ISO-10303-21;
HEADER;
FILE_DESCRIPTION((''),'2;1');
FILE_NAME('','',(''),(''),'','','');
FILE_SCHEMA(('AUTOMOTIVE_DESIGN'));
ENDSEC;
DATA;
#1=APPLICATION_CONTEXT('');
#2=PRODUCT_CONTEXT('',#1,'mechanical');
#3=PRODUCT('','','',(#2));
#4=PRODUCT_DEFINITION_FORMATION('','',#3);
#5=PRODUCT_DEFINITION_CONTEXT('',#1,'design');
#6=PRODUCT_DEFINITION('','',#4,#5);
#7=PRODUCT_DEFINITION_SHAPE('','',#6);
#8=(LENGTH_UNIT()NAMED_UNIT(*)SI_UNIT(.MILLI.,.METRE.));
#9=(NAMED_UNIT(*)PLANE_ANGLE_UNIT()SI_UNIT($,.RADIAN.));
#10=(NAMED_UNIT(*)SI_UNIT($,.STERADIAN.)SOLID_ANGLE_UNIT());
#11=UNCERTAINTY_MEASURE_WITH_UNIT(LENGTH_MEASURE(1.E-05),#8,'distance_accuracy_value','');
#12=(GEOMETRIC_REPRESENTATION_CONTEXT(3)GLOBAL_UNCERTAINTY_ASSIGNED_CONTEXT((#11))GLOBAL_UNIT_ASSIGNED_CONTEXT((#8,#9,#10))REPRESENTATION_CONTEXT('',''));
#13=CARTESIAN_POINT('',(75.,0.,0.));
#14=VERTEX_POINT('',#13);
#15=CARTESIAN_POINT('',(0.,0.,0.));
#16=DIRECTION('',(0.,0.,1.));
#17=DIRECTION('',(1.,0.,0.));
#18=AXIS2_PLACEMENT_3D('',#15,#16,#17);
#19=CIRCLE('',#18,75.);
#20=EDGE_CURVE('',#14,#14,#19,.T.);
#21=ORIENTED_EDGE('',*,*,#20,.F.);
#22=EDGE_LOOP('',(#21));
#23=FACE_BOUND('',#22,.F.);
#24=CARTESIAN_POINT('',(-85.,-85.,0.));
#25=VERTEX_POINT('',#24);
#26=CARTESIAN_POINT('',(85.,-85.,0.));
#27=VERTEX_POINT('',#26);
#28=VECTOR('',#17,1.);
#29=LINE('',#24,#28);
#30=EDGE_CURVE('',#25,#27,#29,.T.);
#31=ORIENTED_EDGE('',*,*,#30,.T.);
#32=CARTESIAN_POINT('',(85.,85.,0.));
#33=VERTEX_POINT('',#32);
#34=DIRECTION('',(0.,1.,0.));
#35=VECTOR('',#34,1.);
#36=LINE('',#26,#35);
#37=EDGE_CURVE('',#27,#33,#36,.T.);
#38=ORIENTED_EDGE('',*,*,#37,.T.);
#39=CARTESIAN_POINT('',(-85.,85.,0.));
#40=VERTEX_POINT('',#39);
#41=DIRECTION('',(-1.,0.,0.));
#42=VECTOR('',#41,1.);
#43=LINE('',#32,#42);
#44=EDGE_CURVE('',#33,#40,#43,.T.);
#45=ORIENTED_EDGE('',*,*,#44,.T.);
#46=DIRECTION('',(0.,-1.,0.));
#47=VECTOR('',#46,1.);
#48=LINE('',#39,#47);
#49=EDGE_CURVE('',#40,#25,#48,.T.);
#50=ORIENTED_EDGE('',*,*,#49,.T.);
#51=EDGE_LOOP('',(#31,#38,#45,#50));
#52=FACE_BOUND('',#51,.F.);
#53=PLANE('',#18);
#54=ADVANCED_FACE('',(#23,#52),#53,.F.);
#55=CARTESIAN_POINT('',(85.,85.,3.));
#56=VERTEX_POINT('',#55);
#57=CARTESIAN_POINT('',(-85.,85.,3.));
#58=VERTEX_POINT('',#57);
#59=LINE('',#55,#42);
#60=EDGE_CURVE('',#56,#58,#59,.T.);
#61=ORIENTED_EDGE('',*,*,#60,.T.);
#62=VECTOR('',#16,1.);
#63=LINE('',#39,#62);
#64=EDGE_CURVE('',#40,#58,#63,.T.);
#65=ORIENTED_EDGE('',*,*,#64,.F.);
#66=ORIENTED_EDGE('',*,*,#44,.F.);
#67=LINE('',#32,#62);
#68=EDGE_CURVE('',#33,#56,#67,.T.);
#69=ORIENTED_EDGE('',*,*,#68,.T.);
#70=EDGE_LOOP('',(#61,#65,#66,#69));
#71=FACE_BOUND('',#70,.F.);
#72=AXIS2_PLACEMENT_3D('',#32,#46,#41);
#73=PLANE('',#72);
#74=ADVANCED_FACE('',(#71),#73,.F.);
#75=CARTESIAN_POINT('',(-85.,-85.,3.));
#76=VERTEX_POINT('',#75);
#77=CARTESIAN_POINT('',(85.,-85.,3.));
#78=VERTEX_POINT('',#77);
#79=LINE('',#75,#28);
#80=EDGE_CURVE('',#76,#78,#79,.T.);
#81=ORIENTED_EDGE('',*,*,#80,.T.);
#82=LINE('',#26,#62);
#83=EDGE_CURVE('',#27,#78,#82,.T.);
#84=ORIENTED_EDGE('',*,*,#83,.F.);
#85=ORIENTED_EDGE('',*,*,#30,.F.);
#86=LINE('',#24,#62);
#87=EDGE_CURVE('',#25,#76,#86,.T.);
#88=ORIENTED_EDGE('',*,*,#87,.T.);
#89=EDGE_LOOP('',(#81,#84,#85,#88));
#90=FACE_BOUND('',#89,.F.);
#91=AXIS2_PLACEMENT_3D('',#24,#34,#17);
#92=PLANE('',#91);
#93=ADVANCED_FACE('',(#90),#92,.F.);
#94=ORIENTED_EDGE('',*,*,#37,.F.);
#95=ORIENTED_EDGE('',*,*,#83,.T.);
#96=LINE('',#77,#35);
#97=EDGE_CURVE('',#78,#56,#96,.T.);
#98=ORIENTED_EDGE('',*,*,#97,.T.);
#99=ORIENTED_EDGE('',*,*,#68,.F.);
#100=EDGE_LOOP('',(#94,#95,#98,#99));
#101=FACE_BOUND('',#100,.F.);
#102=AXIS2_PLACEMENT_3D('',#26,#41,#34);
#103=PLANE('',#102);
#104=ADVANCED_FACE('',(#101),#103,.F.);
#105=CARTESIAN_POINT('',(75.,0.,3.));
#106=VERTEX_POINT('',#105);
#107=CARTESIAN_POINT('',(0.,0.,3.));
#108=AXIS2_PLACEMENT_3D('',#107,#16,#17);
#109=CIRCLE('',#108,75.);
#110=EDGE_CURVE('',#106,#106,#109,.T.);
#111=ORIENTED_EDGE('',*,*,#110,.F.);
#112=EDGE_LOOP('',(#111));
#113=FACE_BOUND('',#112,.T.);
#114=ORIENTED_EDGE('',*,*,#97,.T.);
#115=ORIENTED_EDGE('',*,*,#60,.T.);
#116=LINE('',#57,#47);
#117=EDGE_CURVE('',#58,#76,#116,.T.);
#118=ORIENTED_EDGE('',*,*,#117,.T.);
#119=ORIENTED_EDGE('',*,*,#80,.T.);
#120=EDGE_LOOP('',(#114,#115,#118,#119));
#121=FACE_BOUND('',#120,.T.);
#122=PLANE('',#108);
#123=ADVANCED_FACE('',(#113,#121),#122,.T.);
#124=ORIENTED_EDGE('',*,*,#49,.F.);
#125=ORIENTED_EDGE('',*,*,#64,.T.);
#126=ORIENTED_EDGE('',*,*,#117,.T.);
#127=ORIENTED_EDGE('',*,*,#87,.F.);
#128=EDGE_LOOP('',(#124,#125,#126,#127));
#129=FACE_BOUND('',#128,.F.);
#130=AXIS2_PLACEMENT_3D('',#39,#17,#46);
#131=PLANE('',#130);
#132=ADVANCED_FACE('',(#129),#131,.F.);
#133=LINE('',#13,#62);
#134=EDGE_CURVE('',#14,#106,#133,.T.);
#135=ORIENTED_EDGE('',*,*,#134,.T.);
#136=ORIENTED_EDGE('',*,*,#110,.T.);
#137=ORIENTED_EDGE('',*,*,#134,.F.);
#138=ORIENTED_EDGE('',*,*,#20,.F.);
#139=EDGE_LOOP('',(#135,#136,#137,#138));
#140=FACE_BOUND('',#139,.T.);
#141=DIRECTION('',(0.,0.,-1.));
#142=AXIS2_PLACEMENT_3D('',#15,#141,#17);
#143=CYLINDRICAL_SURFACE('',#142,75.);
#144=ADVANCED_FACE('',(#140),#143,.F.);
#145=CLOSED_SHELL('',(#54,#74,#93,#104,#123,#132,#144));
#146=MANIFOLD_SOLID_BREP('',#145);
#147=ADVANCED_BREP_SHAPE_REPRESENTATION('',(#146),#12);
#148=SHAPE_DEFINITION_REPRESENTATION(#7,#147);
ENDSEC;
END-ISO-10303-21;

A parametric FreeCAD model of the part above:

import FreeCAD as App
import Part
import Sketcher

doc = App.newDocument("Part")
body = doc.addObject("PartDesign::Body", "Body")

# Sketch on XY plane
sketch1 = doc.addObject("Sketcher::SketchObject", "Sketch")
body.addObject(sketch1)
sketch1.AttachmentSupport = (doc.XY_Plane, [""])
sketch1.MapMode = "FlatFace"
sketch1.addGeometry(Part.LineSegment(App.Vector(-85, 85, 0), App.Vector(-85, -85, 0)), False)
sketch1.addGeometry(Part.LineSegment(App.Vector(-85, -85, 0), App.Vector(85, -85, 0)), False)
sketch1.addGeometry(Part.LineSegment(App.Vector(85, -85, 0), App.Vector(85, 85, 0)), False)
sketch1.addGeometry(Part.LineSegment(App.Vector(85, 85, 0), App.Vector(-85, 85, 0)), False)
sketch1.addGeometry(Part.Circle(App.Vector(0, 0, 0), App.Vector(0, 0, 1), 75), False)
sketch1.addConstraint(Sketcher.Constraint("Coincident", 0, 2, 1, 1))
sketch1.addConstraint(Sketcher.Constraint("Coincident", 1, 2, 2, 1))
sketch1.addConstraint(Sketcher.Constraint("Coincident", 2, 2, 3, 1))
sketch1.addConstraint(Sketcher.Constraint("Coincident", 3, 2, 0, 1))
sketch1.addConstraint(Sketcher.Constraint("Vertical", 0))
sketch1.addConstraint(Sketcher.Constraint("Horizontal", 1))
sketch1.addConstraint(Sketcher.Constraint("Vertical", 2))
sketch1.addConstraint(Sketcher.Constraint("Horizontal", 3))
sketch1.addConstraint(Sketcher.Constraint("Coincident", 4, 3, -1, 1))
sketch1.addConstraint(Sketcher.Constraint("Symmetric", 0, 2, 2, 2, -1, 1))
sketch1.addConstraint(Sketcher.Constraint("Equal", 3, 0))
sketch1.addConstraint(Sketcher.Constraint("Diameter", 4, 150.0))
sketch1.addConstraint(Sketcher.Constraint("DistanceX", 1, 1, 1, 2, 170.0))
pad1 = doc.addObject("PartDesign::Pad", "Pad")
body.addObject(pad1)
pad1.Profile = sketch1
pad1.Length = 3

doc.recompute()
